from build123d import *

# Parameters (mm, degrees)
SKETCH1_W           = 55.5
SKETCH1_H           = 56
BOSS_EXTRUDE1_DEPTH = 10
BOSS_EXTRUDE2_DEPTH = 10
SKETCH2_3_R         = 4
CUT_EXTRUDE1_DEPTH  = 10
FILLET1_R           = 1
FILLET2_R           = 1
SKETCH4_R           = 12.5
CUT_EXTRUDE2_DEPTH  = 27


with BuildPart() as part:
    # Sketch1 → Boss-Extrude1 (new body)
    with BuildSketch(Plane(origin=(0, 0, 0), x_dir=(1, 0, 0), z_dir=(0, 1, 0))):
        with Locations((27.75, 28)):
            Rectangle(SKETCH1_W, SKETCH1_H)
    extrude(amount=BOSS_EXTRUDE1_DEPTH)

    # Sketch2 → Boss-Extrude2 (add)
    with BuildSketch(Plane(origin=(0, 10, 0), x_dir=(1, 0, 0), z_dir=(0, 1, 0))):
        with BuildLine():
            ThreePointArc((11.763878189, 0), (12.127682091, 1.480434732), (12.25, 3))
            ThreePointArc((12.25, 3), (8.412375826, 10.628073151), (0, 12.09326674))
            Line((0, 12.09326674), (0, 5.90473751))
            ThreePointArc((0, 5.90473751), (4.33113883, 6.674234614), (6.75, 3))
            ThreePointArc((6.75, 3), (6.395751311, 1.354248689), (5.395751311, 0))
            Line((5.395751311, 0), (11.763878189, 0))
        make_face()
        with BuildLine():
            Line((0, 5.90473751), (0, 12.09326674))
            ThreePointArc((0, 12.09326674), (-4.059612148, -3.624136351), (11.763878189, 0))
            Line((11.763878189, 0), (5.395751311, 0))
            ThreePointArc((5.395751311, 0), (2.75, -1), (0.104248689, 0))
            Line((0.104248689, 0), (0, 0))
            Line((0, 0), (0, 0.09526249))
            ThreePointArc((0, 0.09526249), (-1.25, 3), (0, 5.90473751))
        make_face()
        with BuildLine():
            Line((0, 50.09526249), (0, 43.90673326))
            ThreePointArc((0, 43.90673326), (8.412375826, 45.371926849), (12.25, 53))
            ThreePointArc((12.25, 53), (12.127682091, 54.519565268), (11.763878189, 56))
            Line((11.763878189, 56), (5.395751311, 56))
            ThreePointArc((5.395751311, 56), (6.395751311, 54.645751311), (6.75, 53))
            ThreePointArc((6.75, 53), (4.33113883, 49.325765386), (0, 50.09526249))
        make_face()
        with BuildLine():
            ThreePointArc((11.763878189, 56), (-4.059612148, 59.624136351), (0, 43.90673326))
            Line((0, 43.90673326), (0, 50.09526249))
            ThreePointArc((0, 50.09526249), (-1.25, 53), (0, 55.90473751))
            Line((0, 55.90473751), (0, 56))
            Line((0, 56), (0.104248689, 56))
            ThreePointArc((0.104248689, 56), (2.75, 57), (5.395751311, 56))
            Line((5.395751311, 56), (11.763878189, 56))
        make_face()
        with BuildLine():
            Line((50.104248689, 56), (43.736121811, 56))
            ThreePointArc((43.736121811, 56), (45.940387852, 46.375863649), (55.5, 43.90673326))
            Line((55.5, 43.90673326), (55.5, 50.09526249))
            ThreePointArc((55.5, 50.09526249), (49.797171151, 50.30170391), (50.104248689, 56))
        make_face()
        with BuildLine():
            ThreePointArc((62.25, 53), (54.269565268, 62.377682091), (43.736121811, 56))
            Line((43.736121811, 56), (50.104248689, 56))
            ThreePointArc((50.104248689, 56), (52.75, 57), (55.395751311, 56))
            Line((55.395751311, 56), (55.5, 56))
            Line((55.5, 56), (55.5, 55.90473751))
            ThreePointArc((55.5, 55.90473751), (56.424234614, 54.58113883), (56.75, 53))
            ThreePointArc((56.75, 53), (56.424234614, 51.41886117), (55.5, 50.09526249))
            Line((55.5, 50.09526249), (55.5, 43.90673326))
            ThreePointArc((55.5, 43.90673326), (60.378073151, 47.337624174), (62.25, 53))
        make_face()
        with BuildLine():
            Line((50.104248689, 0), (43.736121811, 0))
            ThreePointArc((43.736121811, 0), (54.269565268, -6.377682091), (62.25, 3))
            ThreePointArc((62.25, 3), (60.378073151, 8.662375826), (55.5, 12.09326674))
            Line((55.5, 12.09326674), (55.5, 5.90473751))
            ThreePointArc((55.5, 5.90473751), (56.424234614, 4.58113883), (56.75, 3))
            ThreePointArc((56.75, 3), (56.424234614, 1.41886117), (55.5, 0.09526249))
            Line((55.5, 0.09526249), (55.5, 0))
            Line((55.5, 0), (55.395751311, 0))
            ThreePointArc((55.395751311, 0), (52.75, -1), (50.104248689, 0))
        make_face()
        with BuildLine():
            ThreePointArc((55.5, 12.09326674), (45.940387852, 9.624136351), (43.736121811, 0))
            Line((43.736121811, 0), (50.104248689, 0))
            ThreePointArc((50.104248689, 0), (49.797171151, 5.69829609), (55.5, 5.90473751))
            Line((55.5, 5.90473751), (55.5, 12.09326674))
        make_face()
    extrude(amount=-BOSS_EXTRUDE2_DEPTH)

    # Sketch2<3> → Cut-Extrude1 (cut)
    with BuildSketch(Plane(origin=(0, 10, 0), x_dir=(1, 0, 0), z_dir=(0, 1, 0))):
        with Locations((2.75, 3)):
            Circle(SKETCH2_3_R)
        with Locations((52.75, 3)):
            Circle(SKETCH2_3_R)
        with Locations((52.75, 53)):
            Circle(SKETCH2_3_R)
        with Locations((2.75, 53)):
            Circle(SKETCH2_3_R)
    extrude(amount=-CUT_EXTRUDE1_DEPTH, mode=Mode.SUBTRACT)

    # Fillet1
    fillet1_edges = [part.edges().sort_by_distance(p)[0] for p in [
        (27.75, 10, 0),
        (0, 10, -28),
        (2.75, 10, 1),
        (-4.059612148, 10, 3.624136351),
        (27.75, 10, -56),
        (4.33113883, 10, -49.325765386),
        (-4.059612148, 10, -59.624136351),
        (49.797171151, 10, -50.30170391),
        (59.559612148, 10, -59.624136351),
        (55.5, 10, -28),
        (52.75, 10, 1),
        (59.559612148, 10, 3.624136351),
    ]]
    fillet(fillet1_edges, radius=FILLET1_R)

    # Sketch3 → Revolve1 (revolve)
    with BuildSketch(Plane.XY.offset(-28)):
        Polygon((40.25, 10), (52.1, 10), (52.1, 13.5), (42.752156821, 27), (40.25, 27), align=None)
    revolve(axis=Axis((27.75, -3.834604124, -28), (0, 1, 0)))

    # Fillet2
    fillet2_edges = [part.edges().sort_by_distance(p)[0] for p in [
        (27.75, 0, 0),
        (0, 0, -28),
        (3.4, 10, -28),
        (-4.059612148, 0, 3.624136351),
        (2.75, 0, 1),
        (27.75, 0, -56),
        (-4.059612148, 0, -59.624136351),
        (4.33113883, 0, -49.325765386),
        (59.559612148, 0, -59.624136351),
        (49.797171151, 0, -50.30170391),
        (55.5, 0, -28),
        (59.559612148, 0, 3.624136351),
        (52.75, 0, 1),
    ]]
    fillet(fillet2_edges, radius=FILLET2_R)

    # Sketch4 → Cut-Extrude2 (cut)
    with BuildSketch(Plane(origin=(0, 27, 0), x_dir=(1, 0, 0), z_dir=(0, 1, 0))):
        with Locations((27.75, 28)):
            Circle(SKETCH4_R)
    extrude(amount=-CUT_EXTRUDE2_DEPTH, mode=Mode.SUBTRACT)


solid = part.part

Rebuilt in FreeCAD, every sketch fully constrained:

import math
import FreeCAD as App
import Part
import Sketcher

V = App.Vector
Q = App.Units.Quantity


def edges_at(feature, points):
    """Names of the edges that pass closest to the given points."""
    edges = feature.Shape.Edges
    near = lambda p: min(range(len(edges)), key=lambda i: edges[i].distToShape(Part.Vertex(*p))[0])
    return sorted({f"Edge{near(p) + 1}" for p in points})

doc = App.newDocument("Part")
body = doc.addObject("PartDesign::Body", "Body")

sketch1 = doc.addObject("Sketcher::SketchObject", "Sketch")
body.addObject(sketch1)
sketch1.AttachmentSupport = (doc.XZ_Plane, [""])
sketch1.MapMode = "FlatFace"
sketch1.addGeometry([
    Part.LineSegment(V(0, -56, 0), V(0, 0, 0)),
    Part.LineSegment(V(0, 0, 0), V(56, 0, 0)),
    Part.LineSegment(V(56, 0, 0), V(56, -56, 0)),
    Part.LineSegment(V(56, -56, 0), V(0, -56, 0)),
], False)
sketch1.addConstraint([
    Sketcher.Constraint("Coincident", 0, 2, 1, 1),
    Sketcher.Constraint("Coincident", 1, 2, 2, 1),
    Sketcher.Constraint("Coincident", 2, 2, 3, 1),
    Sketcher.Constraint("Coincident", 3, 2, 0, 1),
    Sketcher.Constraint("Vertical", 0),
    Sketcher.Constraint("Horizontal", 1),
    Sketcher.Constraint("Vertical", 2),
    Sketcher.Constraint("Horizontal", 3),
    Sketcher.Constraint("Coincident", 0, 2, -1, 1),
    Sketcher.Constraint("DistanceY", 0, 1, 0, 2, 56.0),
    Sketcher.Constraint("DistanceX", 1, 1, 1, 2, 55.5),
])
pad1 = doc.addObject("PartDesign::Pad", "Pad")
body.addObject(pad1)
pad1.Profile = sketch1
pad1.Length = 10
pad1.Reversed = True

sketch2 = doc.addObject("Sketcher::SketchObject", "Sketch001")
body.addObject(sketch2)
sketch2.AttachmentSupport = (doc.XZ_Plane, [""])
sketch2.MapMode = "FlatFace"
sketch2.AttachmentOffset = App.Placement(V(0, 0, -10), App.Rotation())
sketch2.addGeometry([
    Part.ArcOfCircle(Part.Circle(V(2.75, -3, 0), V(0, 0, 1), 9.5), math.radians(0), math.radians(18.41)),
    Part.ArcOfCircle(Part.Circle(V(2.75, -3, 0), V(0, 0, 1), 9.5), math.radians(-107), math.radians(0)),
    Part.ArcOfCircle(Part.Circle(V(2.75, -3, 0), V(0, 0, 1), 9.5), math.radians(18), math.radians(253)),
    Part.ArcOfCircle(Part.Circle(V(2.75, -3, 0), V(0, 0, 1), 4), math.radians(-133), math.radians(0)),
    Part.ArcOfCircle(Part.Circle(V(2.75, -3, 0), V(0, 0, 1), 4), math.radians(0), math.radians(49)),
    Part.ArcOfCircle(Part.Circle(V(2.75, -3, 0), V(0, 0, 1), 4), math.radians(49), math.radians(131)),
    Part.LineSegment(V(0.1, 0, 0), V(0, 0, 0)),
    Part.LineSegment(V(0, 0, 0), V(0, -0.1, 0)),
    Part.ArcOfCircle(Part.Circle(V(2.75, -3, 0), V(0, 0, 1), 4), math.radians(133), math.radians(227)),
    Part.ArcOfCircle(Part.Circle(V(2.75, -53, 0), V(0, 0, 1), 9.5), math.radians(0), math.radians(107)),
    Part.ArcOfCircle(Part.Circle(V(2.75, -53, 0), V(0, 0, 1), 9.5), math.radians(-18.41), math.radians(0)),
    Part.ArcOfCircle(Part.Circle(V(2.75, -53, 0), V(0, 0, 1), 9.5), math.radians(107), math.radians(342)),
    Part.ArcOfCircle(Part.Circle(V(2.75, -53, 0), V(0, 0, 1), 4), math.radians(-49), math.radians(0)),
    Part.ArcOfCircle(Part.Circle(V(2.75, -53, 0), V(0, 0, 1), 4), math.radians(0), math.radians(133)),
    Part.ArcOfCircle(Part.Circle(V(2.75, -53, 0), V(0, 0, 1), 4), math.radians(133), math.radians(227)),
    Part.LineSegment(V(0, -55.9, 0), V(0, -56, 0)),
    Part.LineSegment(V(0, -56, 0), V(0.1, -56, 0)),
    Part.ArcOfCircle(Part.Circle(V(2.75, -53, 0), V(0, 0, 1), 4), math.radians(-131), math.radians(-49)),
    Part.ArcOfCircle(Part.Circle(V(52.75, -53, 0), V(0, 0, 1), 9.5), math.radians(73), math.radians(198)),
    Part.ArcOfCircle(Part.Circle(V(52.75, -53, 0), V(0, 0, 1), 9.5), math.radians(0), math.radians(73)),
    Part.ArcOfCircle(Part.Circle(V(52.75, -53, 0), V(0, 0, 1), 9.5), math.radians(-162), math.radians(0)),
    Part.ArcOfCircle(Part.Circle(V(52.75, -53, 0), V(0, 0, 1), 4), math.radians(47), math.radians(229)),
    Part.ArcOfCircle(Part.Circle(V(52.75, -53, 0), V(0, 0, 1), 4), math.radians(-131), math.radians(-49)),
    Part.LineSegment(V(55.4, -56, 0), V(55.5, -56, 0)),
    Part.LineSegment(V(55.5, -56, 0), V(55.5, -55.9, 0)),
    Part.ArcOfCircle(Part.Circle(V(52.75, -53, 0), V(0, 0, 1), 4), math.radians(-47), math.radians(0)),
    Part.ArcOfCircle(Part.Circle(V(52.75, -53, 0), V(0, 0, 1), 4), math.radians(0), math.radians(47)),
    Part.ArcOfCircle(Part.Circle(V(52.75, -3, 0), V(0, 0, 1), 9.5), math.radians(0), math.radians(162)),
    Part.ArcOfCircle(Part.Circle(V(52.75, -3, 0), V(0, 0, 1), 9.5), math.radians(-73), math.radians(0)),
    Part.ArcOfCircle(Part.Circle(V(52.75, -3, 0), V(0, 0, 1), 9.5), math.radians(162), math.radians(287)),
    Part.ArcOfCircle(Part.Circle(V(52.75, -3, 0), V(0, 0, 1), 4), math.radians(-47), math.radians(0)),
    Part.ArcOfCircle(Part.Circle(V(52.75, -3, 0), V(0, 0, 1), 4), math.radians(0), math.radians(47)),
    Part.LineSegment(V(55.5, -0.1, 0), V(55.5, 0, 0)),
    Part.LineSegment(V(55.5, 0, 0), V(55.4, 0, 0)),
    Part.ArcOfCircle(Part.Circle(V(52.75, -3, 0), V(0, 0, 1), 4), math.radians(49), math.radians(131)),
    Part.ArcOfCircle(Part.Circle(V(52.75, -3, 0), V(0, 0, 1), 4), math.radians(131), math.radians(313)),
], False)
sketch2.addConstraint([
    Sketcher.Constraint("Tangent", 0, 1, 1, 2),
    Sketcher.Constraint("Tangent", 1, 1, 2, 2),
    Sketcher.Constraint("Tangent", 2, 1, 0, 2),
    Sketcher.Constraint("Tangent", 3, 2, 4, 1),
    Sketcher.Constraint("Tangent", 4, 2, 5, 1),
    Sketcher.Constraint("Coincident", 5, 2, 6, 1),
    Sketcher.Constraint("Coincident", 6, 2, 7, 1),
    Sketcher.Constraint("Coincident", 7, 2, 8, 1),
    Sketcher.Constraint("Tangent", 8, 2, 3, 1),
    Sketcher.Constraint("Tangent", 9, 1, 10, 2),
    Sketcher.Constraint("Tangent", 10, 1, 11, 2),
    Sketcher.Constraint("Tangent", 11, 1, 9, 2),
    Sketcher.Constraint("Tangent", 12, 2, 13, 1),
    Sketcher.Constraint("Tangent", 13, 2, 14, 1),
    Sketcher.Constraint("Coincident", 14, 2, 15, 1),
    Sketcher.Constraint("Coincident", 15, 2, 16, 1),
    Sketcher.Constraint("Coincident", 16, 2, 17, 1),
    Sketcher.Constraint("Tangent", 17, 2, 12, 1),
    Sketcher.Constraint("Tangent", 18, 1, 19, 2),
    Sketcher.Constraint("Tangent", 19, 1, 20, 2),
    Sketcher.Constraint("Tangent", 20, 1, 18, 2),
    Sketcher.Constraint("Tangent", 21, 2, 22, 1),
    Sketcher.Constraint("Coincident", 22, 2, 23, 1),
    Sketcher.Constraint("Coincident", 23, 2, 24, 1),
    Sketcher.Constraint("Coincident", 24, 2, 25, 1),
    Sketcher.Constraint("Tangent", 25, 2, 26, 1),
    Sketcher.Constraint("Tangent", 26, 2, 21, 1),
    Sketcher.Constraint("Tangent", 27, 1, 28, 2),
    Sketcher.Constraint("Tangent", 28, 1, 29, 2),
    Sketcher.Constraint("Tangent", 29, 1, 27, 2),
    Sketcher.Constraint("Tangent", 30, 2, 31, 1),
    Sketcher.Constraint("Coincident", 31, 2, 32, 1),
    Sketcher.Constraint("Coincident", 32, 2, 33, 1),
    Sketcher.Constraint("Coincident", 33, 2, 34, 1),
    Sketcher.Constraint("Tangent", 34, 2, 35, 1),
    Sketcher.Constraint("Tangent", 35, 2, 30, 1),
    Sketcher.Constraint("Horizontal", 6),
    Sketcher.Constraint("Vertical", 7),
    Sketcher.Constraint("Vertical", 15),
    Sketcher.Constraint("Horizontal", 16),
    Sketcher.Constraint("Horizontal", 23),
    Sketcher.Constraint("Vertical", 24),
    Sketcher.Constraint("Vertical", 32),
    Sketcher.Constraint("Horizontal", 33),
    Sketcher.Constraint("Coincident", 6, 2, -1, 1),
    Sketcher.Constraint("Coincident", 3, 3, 0, 3),
    Sketcher.Constraint("Coincident", 5, 3, 0, 3),
    Sketcher.Constraint("Coincident", 12, 3, 9, 3),
    Sketcher.Constraint("Coincident", 14, 3, 9, 3),
    Sketcher.Constraint("Coincident", 21, 3, 18, 3),
    Sketcher.Constraint("Coincident", 25, 3, 18, 3),
    Sketcher.Constraint("Coincident", 30, 3, 27, 3),
    Sketcher.Constraint("Coincident", 34, 3, 27, 3),
    Sketcher.Constraint("Equal", 5, 8),
    Sketcher.Constraint("Equal", 2, 9),
    Sketcher.Constraint("Equal", 8, 12),
    Sketcher.Constraint("Equal", 14, 17),
    Sketcher.Constraint("Equal", 11, 18),
    Sketcher.Constraint("Equal", 17, 21),
    Sketcher.Constraint("Equal", 21, 22),
    Sketcher.Constraint("Equal", 20, 27),
    Sketcher.Constraint("Equal", 26, 30),
    Sketcher.Constraint("Equal", 30, 31),
    Sketcher.Constraint("PointOnObject", 1, 1, -2),
    Sketcher.Constraint("PointOnObject", 2, 1, -1),
    Sketcher.Constraint("PointOnObject", 4, 2, -1),
    Sketcher.Constraint("PointOnObject", 8, 2, -2),
    Sketcher.Constraint("PointOnObject", 11, 1, -2),
    Sketcher.Constraint("PointOnObject", 13, 2, -2),
    Sketcher.Constraint("PointOnObject", 14, 2, -2),
    Sketcher.Constraint("PointOnObject", 29, 1, -1),
    Sketcher.Constraint("PointOnObject", 32, 2, -1),
    Sketcher.Constraint("PointOnObject", 34, 2, -1),
    Sketcher.Constraint("Horizontal", 17, 3, 18, 3),
    Sketcher.Constraint("Horizontal", 8, 3, 27, 3),
    Sketcher.Constraint("Horizontal", 35, 3, 0, 1),
    Sketcher.Constraint("Horizontal", 0, 1, 3, 2),
    Sketcher.Constraint("Horizontal", 26, 3, 9, 1),
    Sketcher.Constraint("Horizontal", 9, 1, 12, 2),
    Sketcher.Constraint("Horizontal", 10, 1, 15, 2),
    Sketcher.Constraint("Horizontal", 16, 2, 17, 2),
    Sketcher.Constraint("Horizontal", 11, 1, 18, 1),
    Sketcher.Constraint("Horizontal", 12, 2, 19, 1),
    Sketcher.Constraint("Horizontal", 17, 2, 20, 1),
    Sketcher.Constraint("Horizontal", 20, 1, 21, 2),
    Sketcher.Constraint("Horizontal", 21, 2, 22, 2),
    Sketcher.Constraint("Horizontal", 14, 2, 24, 2),
    Sketcher.Constraint("Horizontal", 19, 1, 25, 2),
    Sketcher.Constraint("Horizontal", 13, 2, 26, 2),
    Sketcher.Constraint("Horizontal", 3, 2, 27, 1),
    Sketcher.Constraint("Horizontal", 1, 1, 28, 1),
    Sketcher.Constraint("Horizontal", 27, 1, 30, 2),
    Sketcher.Constraint("Horizontal", 7, 2, 31, 2),
    Sketcher.Constraint("Horizontal", 8, 2, 35, 2),
    Sketcher.Constraint("Vertical", 8, 3, 9, 3),
    Sketcher.Constraint("Vertical", 26, 3, 27, 3),
    Sketcher.Constraint("Vertical", 2, 1, 10, 1),
    Sketcher.Constraint("Radius", 3, 4.0),
    Sketcher.Constraint("Radius", 0, 9.5),
    Sketcher.Constraint("DistanceY", 0, 3, -1, 1, 3.0),
    Sketcher.Constraint("DistanceY", 9, 3, -1, 1, 53.0),
    Sketcher.Constraint("DistanceX", -1, 1, 18, 1, 55.5),
    Sketcher.Constraint("DistanceX", -1, 1, 0, 3, 2.75),
])
pad2 = doc.addObject("PartDesign::Pad", "Pad001")
body.addObject(pad2)
pad2.Profile = sketch2
pad2.Length = 10

sketch3 = doc.addObject("Sketcher::SketchObject", "Sketch002")
body.addObject(sketch3)
sketch3.AttachmentSupport = (doc.XZ_Plane, [""])
sketch3.MapMode = "FlatFace"
sketch3.AttachmentOffset = App.Placement(V(0, 0, -10), App.Rotation())
sketch3.addGeometry([
    Part.Circle(V(2.8, -3, 0), V(0, 0, 1), 4),
    Part.Circle(V(52.8, -3, 0), V(0, 0, 1), 4),
    Part.Circle(V(52.8, -53, 0), V(0, 0, 1), 4),
    Part.Circle(V(2.8, -53, 0), V(0, 0, 1), 4),
], False)
sketch3.addConstraint([
    Sketcher.Constraint("Equal", 0, 1),
    Sketcher.Constraint("Equal", 1, 2),
    Sketcher.Constraint("Equal", 2, 3),
    Sketcher.Constraint("Horizontal", 0, 3, 1, 3),
    Sketcher.Constraint("Horizontal", 2, 3, 3, 3),
    Sketcher.Constraint("Vertical", 1, 3, 2, 3),
    Sketcher.Constraint("Vertical", 0, 3, 3, 3),
    Sketcher.Constraint("Diameter", 0, 8.0),
    Sketcher.Constraint("DistanceY", 0, 3, -1, 1, 3.0),
    Sketcher.Constraint("DistanceY", 2, 3, -1, 1, 53.0),
    Sketcher.Constraint("DistanceX", 0, 3, 1, 3, 50.0),
    Sketcher.Constraint("DistanceX", -1, 1, 0, 3, 2.75),
])
pocket1 = doc.addObject("PartDesign::Pocket", "Pocket")
body.addObject(pocket1)
pocket1.Profile = sketch3
pocket1.Length = 10
pocket1.Reversed = True
doc.recompute()

fillet = doc.addObject("PartDesign::Fillet", "Fillet")
body.addObject(fillet)
fillet.Base = (pocket1, edges_at(pocket1, [
    (27.75, 10, 0),
    (0, 10, -28),
    (2.75, 10, 1),
    (-4.06, 10, 3.624),
    (27.75, 10, -56),
    (5.703, 10, -50.302),
    (-4.06, 10, -59.624),
    (49.797, 10, -50.302),
    (54.27, 10, -62.378),
    (55.5, 10, -28),
    (52.75, 10, 1),
    (54.27, 10, 6.378),
]))
fillet.Radius = 1

sketch4 = doc.addObject("Sketcher::SketchObject", "Sketch003")
body.addObject(sketch4)
sketch4.AttachmentSupport = (doc.XY_Plane, [""])
sketch4.MapMode = "FlatFace"
sketch4.AttachmentOffset = App.Placement(V(0, 0, -28), App.Rotation())
sketch4.addGeometry([
    Part.LineSegment(V(40.2, 10, 0), V(52.1, 10, 0)),
    Part.LineSegment(V(52.1, 10, 0), V(52.1, 13.5, 0)),
    Part.LineSegment(V(52.1, 13.5, 0), V(42.8, 27, 0)),
    Part.LineSegment(V(42.8, 27, 0), V(40.2, 27, 0)),
    Part.LineSegment(V(40.2, 27, 0), V(40.2, 10, 0)),
], False)
sketch4.addGeometry(Part.LineSegment(V(27.8, 10, 0), V(27.8, 27, 0)), True)
sketch4.addConstraint([
    Sketcher.Constraint("Coincident", 0, 2, 1, 1),
    Sketcher.Constraint("Coincident", 1, 2, 2, 1),
    Sketcher.Constraint("Coincident", 2, 2, 3, 1),
    Sketcher.Constraint("Coincident", 3, 2, 4, 1),
    Sketcher.Constraint("Coincident", 4, 2, 0, 1),
    Sketcher.Constraint("Horizontal", 0),
    Sketcher.Constraint("Vertical", 1),
    Sketcher.Constraint("Horizontal", 3),
    Sketcher.Constraint("Vertical", 4),
    Sketcher.Constraint("Vertical", 5),
    Sketcher.Constraint("Horizontal", 4, 2, 5, 1),
    Sketcher.Constraint("Horizontal", 3, 2, 5, 2),
    Sketcher.Constraint("DistanceY", 4, 2, 4, 1, 17.0),
    Sketcher.Constraint("DistanceY", 1, 1, 1, 2, 3.5),
    Sketcher.Constraint("DistanceY", -1, 1, 0, 2, 10.0),
    Sketcher.Constraint("Angle", 2, Q("124.7 deg")),
    Sketcher.Constraint("DistanceX", 0, 1, 0, 2, 11.85),
    Sketcher.Constraint("DistanceX", -1, 1, 0, 2, 52.1),
    Sketcher.Constraint("DistanceX", 5, 1, 4, 2, 12.5),
])
revolution = doc.addObject("PartDesign::Revolution", "Revolution")
body.addObject(revolution)
revolution.Profile = sketch4
revolution.ReferenceAxis = (sketch4, ["Axis0"])
revolution.Angle = 360
doc.recompute()

fillet2 = doc.addObject("PartDesign::Fillet", "Fillet001")
body.addObject(fillet2)
fillet2.Base = (revolution, edges_at(revolution, [
    (27.75, 0, 0),
    (0, 0, -28),
    (3.4, 10, -28),
    (-4.06, 0, 3.624),
    (2.75, 0, 1),
    (27.75, 0, -56),
    (-4.06, 0, -59.624),
    (5.703, 0, -50.302),
    (54.27, 0, -62.378),
    (49.797, 0, -50.302),
    (55.5, 0, -28),
    (54.27, 0, 6.378),
    (52.75, 0, 1),
]))
fillet2.Radius = 1

sketch5 = doc.addObject("Sketcher::SketchObject", "Sketch004")
body.addObject(sketch5)
sketch5.AttachmentSupport = (doc.XZ_Plane, [""])
sketch5.MapMode = "FlatFace"
sketch5.AttachmentOffset = App.Placement(V(0, 0, -27), App.Rotation())
sketch5.addGeometry(Part.Circle(V(28, -28, 0), V(0, 0, 1), 12), False)
sketch5.addConstraint([
    Sketcher.Constraint("Diameter", 0, 25.0),
    Sketcher.Constraint("DistanceY", 0, 3, -1, 1, 28.0),
    Sketcher.Constraint("DistanceX", -1, 1, 0, 3, 27.75),
])
pocket2 = doc.addObject("PartDesign::Pocket", "Pocket001")
body.addObject(pocket2)
pocket2.Profile = sketch5
pocket2.Length = 27
pocket2.Reversed = True

doc.recompute()
